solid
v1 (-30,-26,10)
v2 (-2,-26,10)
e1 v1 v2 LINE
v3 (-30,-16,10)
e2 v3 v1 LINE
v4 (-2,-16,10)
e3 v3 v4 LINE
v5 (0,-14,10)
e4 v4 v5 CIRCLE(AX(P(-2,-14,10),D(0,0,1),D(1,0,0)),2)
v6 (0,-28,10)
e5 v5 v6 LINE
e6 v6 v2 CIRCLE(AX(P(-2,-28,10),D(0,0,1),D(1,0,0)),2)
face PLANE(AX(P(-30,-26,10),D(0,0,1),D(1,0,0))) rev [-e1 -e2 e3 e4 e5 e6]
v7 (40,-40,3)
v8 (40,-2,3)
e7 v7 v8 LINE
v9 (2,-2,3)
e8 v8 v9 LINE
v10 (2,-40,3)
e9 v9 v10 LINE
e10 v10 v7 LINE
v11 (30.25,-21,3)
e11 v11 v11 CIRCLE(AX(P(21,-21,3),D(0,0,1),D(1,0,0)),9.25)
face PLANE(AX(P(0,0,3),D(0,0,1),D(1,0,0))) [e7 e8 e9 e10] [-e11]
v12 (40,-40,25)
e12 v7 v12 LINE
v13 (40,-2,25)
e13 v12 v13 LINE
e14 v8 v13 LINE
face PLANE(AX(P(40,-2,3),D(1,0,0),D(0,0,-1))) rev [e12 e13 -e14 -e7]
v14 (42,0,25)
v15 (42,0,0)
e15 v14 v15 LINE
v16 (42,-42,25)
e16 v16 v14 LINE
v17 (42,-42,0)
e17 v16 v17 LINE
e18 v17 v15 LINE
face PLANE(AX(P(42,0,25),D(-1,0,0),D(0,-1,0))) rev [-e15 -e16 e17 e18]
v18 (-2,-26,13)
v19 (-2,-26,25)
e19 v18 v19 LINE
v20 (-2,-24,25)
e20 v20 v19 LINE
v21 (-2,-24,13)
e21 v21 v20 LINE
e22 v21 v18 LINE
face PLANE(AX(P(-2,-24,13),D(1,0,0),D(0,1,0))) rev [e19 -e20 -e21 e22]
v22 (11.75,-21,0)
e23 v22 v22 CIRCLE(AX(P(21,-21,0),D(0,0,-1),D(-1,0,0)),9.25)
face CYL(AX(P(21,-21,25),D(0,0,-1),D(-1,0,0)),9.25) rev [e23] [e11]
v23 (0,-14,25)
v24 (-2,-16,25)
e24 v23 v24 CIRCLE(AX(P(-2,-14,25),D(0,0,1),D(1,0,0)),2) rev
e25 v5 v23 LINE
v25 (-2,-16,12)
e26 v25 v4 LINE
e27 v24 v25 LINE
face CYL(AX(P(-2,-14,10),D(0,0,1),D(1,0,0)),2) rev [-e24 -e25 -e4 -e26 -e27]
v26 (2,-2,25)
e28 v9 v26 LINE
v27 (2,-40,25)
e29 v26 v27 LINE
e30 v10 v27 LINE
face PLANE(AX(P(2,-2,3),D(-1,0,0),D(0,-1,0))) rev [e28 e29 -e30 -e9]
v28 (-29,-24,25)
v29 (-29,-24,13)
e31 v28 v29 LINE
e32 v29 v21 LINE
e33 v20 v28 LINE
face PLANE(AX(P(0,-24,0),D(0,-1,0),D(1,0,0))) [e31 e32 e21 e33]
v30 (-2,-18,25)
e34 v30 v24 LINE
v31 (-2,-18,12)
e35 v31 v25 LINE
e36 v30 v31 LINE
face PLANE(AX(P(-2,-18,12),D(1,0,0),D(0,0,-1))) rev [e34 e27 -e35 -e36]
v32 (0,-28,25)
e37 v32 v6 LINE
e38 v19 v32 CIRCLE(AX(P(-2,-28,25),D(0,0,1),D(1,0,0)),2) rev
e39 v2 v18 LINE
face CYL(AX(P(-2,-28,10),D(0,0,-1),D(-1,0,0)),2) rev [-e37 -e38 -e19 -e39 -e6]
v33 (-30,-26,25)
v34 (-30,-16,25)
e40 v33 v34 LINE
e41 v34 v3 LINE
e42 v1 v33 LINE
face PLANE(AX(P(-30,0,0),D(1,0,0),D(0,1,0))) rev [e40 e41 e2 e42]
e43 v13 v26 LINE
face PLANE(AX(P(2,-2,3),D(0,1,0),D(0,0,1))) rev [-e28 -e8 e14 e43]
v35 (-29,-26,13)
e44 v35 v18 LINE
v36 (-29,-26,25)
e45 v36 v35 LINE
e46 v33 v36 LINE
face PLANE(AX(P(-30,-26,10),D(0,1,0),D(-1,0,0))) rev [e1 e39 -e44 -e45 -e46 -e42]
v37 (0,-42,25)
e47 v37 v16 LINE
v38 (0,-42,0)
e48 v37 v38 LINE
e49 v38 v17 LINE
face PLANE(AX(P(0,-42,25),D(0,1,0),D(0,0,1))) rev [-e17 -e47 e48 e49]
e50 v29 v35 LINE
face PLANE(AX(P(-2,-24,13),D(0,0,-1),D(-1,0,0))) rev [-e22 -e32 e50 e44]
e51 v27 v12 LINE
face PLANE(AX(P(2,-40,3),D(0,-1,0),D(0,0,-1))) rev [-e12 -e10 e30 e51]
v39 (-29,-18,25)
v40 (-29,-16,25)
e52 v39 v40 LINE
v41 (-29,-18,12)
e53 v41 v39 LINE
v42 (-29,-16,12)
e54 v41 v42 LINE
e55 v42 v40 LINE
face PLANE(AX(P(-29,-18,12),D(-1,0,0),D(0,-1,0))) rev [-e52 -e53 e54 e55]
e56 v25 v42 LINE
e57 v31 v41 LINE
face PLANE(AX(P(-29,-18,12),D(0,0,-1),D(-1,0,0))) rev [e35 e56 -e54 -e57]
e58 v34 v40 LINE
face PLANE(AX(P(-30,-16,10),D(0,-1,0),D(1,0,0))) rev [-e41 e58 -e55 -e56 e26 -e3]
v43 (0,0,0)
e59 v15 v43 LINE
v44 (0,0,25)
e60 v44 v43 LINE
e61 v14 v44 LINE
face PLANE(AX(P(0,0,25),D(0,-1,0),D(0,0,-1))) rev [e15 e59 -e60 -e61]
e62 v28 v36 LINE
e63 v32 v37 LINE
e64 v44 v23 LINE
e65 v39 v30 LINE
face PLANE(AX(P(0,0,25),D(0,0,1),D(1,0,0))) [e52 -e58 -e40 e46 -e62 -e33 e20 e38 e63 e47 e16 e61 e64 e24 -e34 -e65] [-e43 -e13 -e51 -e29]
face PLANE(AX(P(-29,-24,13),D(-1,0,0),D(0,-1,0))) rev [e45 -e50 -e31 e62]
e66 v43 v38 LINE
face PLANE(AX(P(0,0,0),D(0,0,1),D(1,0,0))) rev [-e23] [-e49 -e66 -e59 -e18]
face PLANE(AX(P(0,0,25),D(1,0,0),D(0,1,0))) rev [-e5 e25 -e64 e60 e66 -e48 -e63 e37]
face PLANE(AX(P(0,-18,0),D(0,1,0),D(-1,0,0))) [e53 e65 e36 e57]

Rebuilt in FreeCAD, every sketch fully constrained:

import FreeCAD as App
import Part
import Sketcher
from FreeCAD import Vector


def edges_at(feature, points):
    """Names of the edges that pass closest to the given points."""
    edges = feature.Shape.Edges
    near = lambda p: min(range(len(edges)), key=lambda i: edges[i].distToShape(Part.Vertex(*p))[0])
    return sorted({f"Edge{near(p) + 1}" for p in points})


def add_polygon(sketch, points):
    """Adds a closed chain of lines whose ends are joined by coincident constraints."""
    first, n = sketch.GeometryCount, len(points)
    for a, b in zip(points, points[1:] + points[:1]):
        sketch.addGeometry(Part.LineSegment(App.Vector(*a, 0), App.Vector(*b, 0)), False)
    for i in range(n):
        sketch.addConstraint(Sketcher.Constraint("Coincident", first + i, 2, first + (i + 1) % n, 1))

doc = App.newDocument("Part")
body = doc.addObject("PartDesign::Body", "Body")

# Sketch on XY plane
sketch1 = doc.addObject("Sketcher::SketchObject", "Sketch")
body.addObject(sketch1)
sketch1.AttachmentSupport = (doc.XY_Plane, [""])
sketch1.MapMode = "FlatFace"
add_polygon(sketch1, [(0, 0), (0, -42), (42, -42), (42, 0)])  # lines 0-3
sketch1.addConstraint(Sketcher.Constraint("Vertical", 0))
sketch1.addConstraint(Sketcher.Constraint("Horizontal", 1))
sketch1.addConstraint(Sketcher.Constraint("Vertical", 2))
sketch1.addConstraint(Sketcher.Constraint("Horizontal", 3))
sketch1.addConstraint(Sketcher.Constraint("Coincident", 3, 2, -1, 1))
sketch1.addConstraint(Sketcher.Constraint("Equal", 3, 0))
sketch1.addConstraint(Sketcher.Constraint("DistanceX", 1, 1, 1, 2, 42.0))
pad1 = doc.addObject("PartDesign::Pad", "Pad")
body.addObject(pad1)
pad1.Profile = sketch1
pad1.Length = 25

# Sketch on XY plane
sketch2 = doc.addObject("Sketcher::SketchObject", "Sketch001")
body.addObject(sketch2)
sketch2.AttachmentSupport = (doc.XY_Plane, [""])
sketch2.MapMode = "FlatFace"
sketch2.AttachmentOffset = App.Placement(Vector(0, 0, 25), App.Rotation())
add_polygon(sketch2, [(2, -2), (2, -40), (40, -40), (40, -2)])  # lines 0-3
sketch2.addConstraint(Sketcher.Constraint("Vertical", 0))
sketch2.addConstraint(Sketcher.Constraint("Horizontal", 1))
sketch2.addConstraint(Sketcher.Constraint("Vertical", 2))
sketch2.addConstraint(Sketcher.Constraint("Horizontal", 3))
sketch2.addConstraint(Sketcher.Constraint("Equal", 3, 0))
sketch2.addConstraint(Sketcher.Constraint("DistanceX", 1, 1, 1, 2, 38.0))
sketch2.addConstraint(Sketcher.Constraint("DistanceX", -1, 1, 0, 2, 2.0))
sketch2.addConstraint(Sketcher.Constraint("DistanceY", 0, 2, -1, 1, 40.0))
pocket1 = doc.addObject("PartDesign::Pocket", "Pocket")
body.addObject(pocket1)
pocket1.Profile = sketch2
pocket1.Length = 22

# Sketch on XY plane
sketch3 = doc.addObject("Sketcher::SketchObject", "Sketch002")
body.addObject(sketch3)
sketch3.AttachmentSupport = (doc.XY_Plane, [""])
sketch3.MapMode = "FlatFace"
sketch3.addGeometry(Part.Circle(Vector(21, -21, 0), Vector(0, 0, 1), 9), False)
sketch3.addConstraint(Sketcher.Constraint("Diameter", 0, 18.5))
sketch3.addConstraint(Sketcher.Constraint("DistanceX", -1, 1, 0, 3, 21.0))
sketch3.addConstraint(Sketcher.Constraint("DistanceY", 0, 3, -1, 1, 21.0))
pocket2 = doc.addObject("PartDesign::Pocket", "Pocket001")
body.addObject(pocket2)
pocket2.Profile = sketch3
pocket2.Type = "ThroughAll"
pocket2.Reversed = True

# Sketch on YZ plane
sketch4 = doc.addObject("Sketcher::SketchObject", "Sketch003")
body.addObject(sketch4)
sketch4.AttachmentSupport = (doc.YZ_Plane, [""])
sketch4.MapMode = "FlatFace"
add_polygon(sketch4, [(-16, 10), (-26, 10), (-26, 25), (-16, 25)])  # lines 0-3
sketch4.addConstraint(Sketcher.Constraint("Horizontal", 0))
sketch4.addConstraint(Sketcher.Constraint("Vertical", 1))
sketch4.addConstraint(Sketcher.Constraint("Horizontal", 2))
sketch4.addConstraint(Sketcher.Constraint("Vertical", 3))
sketch4.addConstraint(Sketcher.Constraint("DistanceX", 0, 2, 0, 1, 10.0))
sketch4.addConstraint(Sketcher.Constraint("DistanceY", 1, 1, 1, 2, 15.0))
sketch4.addConstraint(Sketcher.Constraint("DistanceX", 0, 2, -1, 1, 26.0))
sketch4.addConstraint(Sketcher.Constraint("DistanceY", -1, 1, 0, 2, 10.0))
pad2 = doc.addObject("PartDesign::Pad", "Pad001")
body.addObject(pad2)
pad2.Profile = sketch4
pad2.Length = 30
pad2.Reversed = True

# Sketch on XZ plane
sketch5 = doc.addObject("Sketcher::SketchObject", "Sketch004")
body.addObject(sketch5)
sketch5.AttachmentSupport = (doc.XZ_Plane, [""])
sketch5.MapMode = "FlatFace"
sketch5.AttachmentOffset = App.Placement(Vector(0, 0, 26), App.Rotation())
add_polygon(sketch5, [(-29, 25), (-29, 13), (-2, 13), (-2, 25)])  # lines 0-3
sketch5.addConstraint(Sketcher.Constraint("Vertical", 0))
sketch5.addConstraint(Sketcher.Constraint("Horizontal", 1))
sketch5.addConstraint(Sketcher.Constraint("Vertical", 2))
sketch5.addConstraint(Sketcher.Constraint("Horizontal", 3))
sketch5.addConstraint(Sketcher.Constraint("DistanceX", 1, 1, 1, 2, 27.0))
sketch5.addConstraint(Sketcher.Constraint("DistanceY", 0, 2, 0, 1, 12.0))
sketch5.addConstraint(Sketcher.Constraint("DistanceX", 0, 2, -1, 1, 29.0))
sketch5.addConstraint(Sketcher.Constraint("DistanceY", -1, 1, 0, 2, 13.0))
pocket3 = doc.addObject("PartDesign::Pocket", "Pocket002")
body.addObject(pocket3)
pocket3.Profile = sketch5
pocket3.Length = 2

# Sketch on XZ plane
sketch6 = doc.addObject("Sketcher::SketchObject", "Sketch005")
body.addObject(sketch6)
sketch6.AttachmentSupport = (doc.XZ_Plane, [""])
sketch6.MapMode = "FlatFace"
sketch6.AttachmentOffset = App.Placement(Vector(0, 0, 16), App.Rotation())
add_polygon(sketch6, [(-29, 12), (-29, 25), (-2, 25), (-2, 12)])  # lines 0-3
sketch6.addConstraint(Sketcher.Constraint("Vertical", 0))
sketch6.addConstraint(Sketcher.Constraint("Horizontal", 1))
sketch6.addConstraint(Sketcher.Constraint("Vertical", 2))
sketch6.addConstraint(Sketcher.Constraint("Horizontal", 3))
sketch6.addConstraint(Sketcher.Constraint("DistanceX", 1, 1, 1, 2, 27.0))
sketch6.addConstraint(Sketcher.Constraint("DistanceY", 0, 1, 0, 2, 13.0))
sketch6.addConstraint(Sketcher.Constraint("DistanceX", 0, 2, -1, 1, 29.0))
sketch6.addConstraint(Sketcher.Constraint("DistanceY", -1, 1, 0, 2, 25.0))
pocket4 = doc.addObject("PartDesign::Pocket", "Pocket003")
body.addObject(pocket4)
pocket4.Profile = sketch6
pocket4.Length = 2
pocket4.Reversed = True
doc.recompute()

fillet = doc.addObject("PartDesign::Fillet", "Fillet")
body.addObject(fillet)
fillet.Base = (pocket4, edges_at(pocket4, [(0, -26, 17.5), (0, -16, 17.5)]))
fillet.Radius = 2

doc.recompute()
